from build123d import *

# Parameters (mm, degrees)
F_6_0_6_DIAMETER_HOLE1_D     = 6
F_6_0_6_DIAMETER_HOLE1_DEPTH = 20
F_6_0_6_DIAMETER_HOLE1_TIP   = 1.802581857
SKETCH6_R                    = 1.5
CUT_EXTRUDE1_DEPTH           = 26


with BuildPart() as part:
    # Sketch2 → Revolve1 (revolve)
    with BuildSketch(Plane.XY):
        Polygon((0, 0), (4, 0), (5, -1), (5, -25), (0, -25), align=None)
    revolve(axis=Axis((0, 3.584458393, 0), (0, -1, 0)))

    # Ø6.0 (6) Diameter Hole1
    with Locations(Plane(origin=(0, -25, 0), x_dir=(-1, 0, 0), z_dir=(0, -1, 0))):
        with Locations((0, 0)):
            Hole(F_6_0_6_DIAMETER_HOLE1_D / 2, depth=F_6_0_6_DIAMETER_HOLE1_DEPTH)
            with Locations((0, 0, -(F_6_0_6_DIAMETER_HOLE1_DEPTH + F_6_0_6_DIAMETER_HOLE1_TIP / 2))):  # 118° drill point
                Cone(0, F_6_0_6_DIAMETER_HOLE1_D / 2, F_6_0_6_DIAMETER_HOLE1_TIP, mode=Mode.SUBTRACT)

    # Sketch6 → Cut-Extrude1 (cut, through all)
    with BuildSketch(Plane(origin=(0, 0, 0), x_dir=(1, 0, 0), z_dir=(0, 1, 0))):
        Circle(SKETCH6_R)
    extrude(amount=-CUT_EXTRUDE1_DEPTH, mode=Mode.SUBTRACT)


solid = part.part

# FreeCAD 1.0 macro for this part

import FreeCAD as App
import Part
import Sketcher

V = App.Vector

doc = App.newDocument("Part")
body = doc.addObject("PartDesign::Body", "Body")

sketch1 = body.newObject("Sketcher::SketchObject", "Sketch")
sketch1.AttachmentSupport = (doc.getObject("XY_Plane"), [""])
sketch1.MapMode = "FlatFace"
sketch1.addGeometry(Part.LineSegment(V(4, 0, 0), V(0, 0, 0)), False)
sketch1.addGeometry(Part.LineSegment(V(0, 0, 0), V(0, -25, 0)), False)
sketch1.addGeometry(Part.LineSegment(V(0, -25, 0), V(5, -25, 0)), False)
sketch1.addGeometry(Part.LineSegment(V(5, -25, 0), V(5, -1, 0)), False)
sketch1.addGeometry(Part.LineSegment(V(5, -1, 0), V(4, 0, 0)), False)
sketch1.addConstraint(Sketcher.Constraint("Coincident", 0, 2, 1, 1))
sketch1.addConstraint(Sketcher.Constraint("Coincident", 1, 2, 2, 1))
sketch1.addConstraint(Sketcher.Constraint("Coincident", 2, 2, 3, 1))
sketch1.addConstraint(Sketcher.Constraint("Coincident", 3, 2, 4, 1))
sketch1.addConstraint(Sketcher.Constraint("Coincident", 4, 2, 0, 1))
sketch1.addConstraint(Sketcher.Constraint("Horizontal", 0))
sketch1.addConstraint(Sketcher.Constraint("Vertical", 1))
sketch1.addConstraint(Sketcher.Constraint("Horizontal", 2))
sketch1.addConstraint(Sketcher.Constraint("Vertical", 3))
sketch1.addConstraint(Sketcher.Constraint("Coincident", 0, 2, -1, 1))
sketch1.addConstraint(Sketcher.Constraint("DistanceX", 0, 2, 0, 1, 4.0))
sketch1.addConstraint(Sketcher.Constraint("DistanceX", 2, 1, 2, 2, 5.0))
sketch1.addConstraint(Sketcher.Constraint("DistanceY", 1, 2, 1, 1, 25.0))
sketch1.addConstraint(Sketcher.Constraint("DistanceY", 3, 1, 3, 2, 24.0))
revolution = body.newObject("PartDesign::Revolution", "Revolution")
revolution.Profile = sketch1
revolution.ReferenceAxis = (sketch1, ["V_Axis"])
revolution.Angle = 360

sketch2 = body.newObject("Sketcher::SketchObject", "Sketch001")
sketch2.AttachmentSupport = (doc.getObject("XZ_Plane"), [""])
sketch2.MapMode = "FlatFace"
sketch2.AttachmentOffset = App.Placement(V(0, 0, 25), App.Rotation())
sketch2.addGeometry(Part.Circle(V(0, 0, 0), V(0, 0, 1), 3), False)
sketch2.addConstraint(Sketcher.Constraint("Coincident", 0, 3, -1, 1))
sketch2.addConstraint(Sketcher.Constraint("Diameter", 0, 6.0))
doc.recompute()
hole = body.newObject("PartDesign::Hole", "Hole")
hole.Profile = sketch2
hole.ThreadType = "None"
hole.Diameter = 6
hole.DepthType = "Dimension"
hole.Depth = 20
hole.DrillPoint = "Angled"
hole.DrillPointAngle = 118

sketch3 = body.newObject("Sketcher::SketchObject", "Sketch002")
sketch3.AttachmentSupport = (doc.getObject("XZ_Plane"), [""])
sketch3.MapMode = "FlatFace"
sketch3.addGeometry(Part.Circle(V(0, 0, 0), V(0, 0, 1), 1.5), False)
sketch3.addConstraint(Sketcher.Constraint("Coincident", 0, 3, -1, 1))
sketch3.addConstraint(Sketcher.Constraint("Diameter", 0, 3.0))
pocket1 = body.newObject("PartDesign::Pocket", "Pocket")
pocket1.Profile = sketch3
pocket1.Type = "ThroughAll"
pocket1.Reversed = True

doc.recompute()
